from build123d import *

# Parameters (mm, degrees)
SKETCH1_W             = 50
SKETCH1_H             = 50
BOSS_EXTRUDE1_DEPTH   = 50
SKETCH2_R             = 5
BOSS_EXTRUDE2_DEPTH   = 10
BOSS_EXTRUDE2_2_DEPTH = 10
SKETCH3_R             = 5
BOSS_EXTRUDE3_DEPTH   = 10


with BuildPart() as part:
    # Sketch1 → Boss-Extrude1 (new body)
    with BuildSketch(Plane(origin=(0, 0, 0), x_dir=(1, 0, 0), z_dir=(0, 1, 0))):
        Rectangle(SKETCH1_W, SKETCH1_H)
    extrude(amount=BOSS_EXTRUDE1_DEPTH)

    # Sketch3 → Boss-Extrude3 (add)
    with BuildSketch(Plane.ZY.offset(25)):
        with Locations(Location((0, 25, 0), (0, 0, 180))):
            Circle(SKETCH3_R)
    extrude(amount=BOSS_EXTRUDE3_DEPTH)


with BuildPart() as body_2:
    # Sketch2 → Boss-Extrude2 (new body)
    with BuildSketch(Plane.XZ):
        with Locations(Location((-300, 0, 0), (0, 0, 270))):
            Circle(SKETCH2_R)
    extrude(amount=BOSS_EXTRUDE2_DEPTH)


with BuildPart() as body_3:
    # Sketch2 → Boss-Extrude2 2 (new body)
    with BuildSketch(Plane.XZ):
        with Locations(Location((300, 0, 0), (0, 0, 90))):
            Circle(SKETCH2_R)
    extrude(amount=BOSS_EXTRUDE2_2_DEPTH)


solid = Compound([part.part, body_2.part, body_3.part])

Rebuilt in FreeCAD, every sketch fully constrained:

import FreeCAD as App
import Part
import Sketcher

V = App.Vector
Q = App.Units.Quantity

doc = App.newDocument("Part")
body = doc.addObject("PartDesign::Body", "Body")

sketch1 = body.newObject("Sketcher::SketchObject", "Sketch")
sketch1.AttachmentSupport = (doc.getObject("XZ_Plane"), [""])
sketch1.MapMode = "FlatFace"
sketch1.addGeometry([
    Part.LineSegment(V(-25, -25, 0), V(-25, 25, 0)),
    Part.LineSegment(V(-25, 25, 0), V(25, 25, 0)),
    Part.LineSegment(V(25, 25, 0), V(25, -25, 0)),
    Part.LineSegment(V(25, -25, 0), V(-25, -25, 0)),
], False)
sketch1.addConstraint([
    Sketcher.Constraint("Coincident", 0, 2, 1, 1),
    Sketcher.Constraint("Coincident", 1, 2, 2, 1),
    Sketcher.Constraint("Coincident", 2, 2, 3, 1),
    Sketcher.Constraint("Coincident", 3, 2, 0, 1),
    Sketcher.Constraint("Vertical", 0),
    Sketcher.Constraint("Horizontal", 1),
    Sketcher.Constraint("Vertical", 2),
    Sketcher.Constraint("Horizontal", 3),
    Sketcher.Constraint("Symmetric", 0, 2, 2, 2, -1, 1),
    Sketcher.Constraint("Equal", 3, 0),
    Sketcher.Constraint("DistanceX", 1, 1, 1, 2, Q("50 mm")),
])
pad1 = body.newObject("PartDesign::Pad", "Pad")
pad1.Profile = sketch1
pad1.Length = 50
pad1.Reversed = True

sketch2 = body.newObject("Sketcher::SketchObject", "Sketch001")
sketch2.AttachmentSupport = (doc.getObject("YZ_Plane"), [""])
sketch2.MapMode = "FlatFace"
sketch2.AttachmentOffset = App.Placement(V(0, 0, -25), App.Rotation())
sketch2.addGeometry(Part.Circle(V(25, 0, 0), V(0, 0, 1), 5), False)
sketch2.addConstraint([
    Sketcher.Constraint("PointOnObject", 0, 3, -1),
    Sketcher.Constraint("Diameter", 0, Q("10 mm")),
    Sketcher.Constraint("DistanceX", -1, 1, 0, 3, Q("25 mm")),
])
pad2 = body.newObject("PartDesign::Pad", "Pad001")
pad2.Profile = sketch2
pad2.Length = 10
pad2.Reversed = True
body2 = doc.addObject("PartDesign::Body", "Body001")

sketch3 = body2.newObject("Sketcher::SketchObject", "Sketch002")
sketch3.AttachmentSupport = (doc.getObject("XZ_Plane001"), [""])
sketch3.MapMode = "FlatFace"
sketch3.addGeometry(Part.Circle(V(-300, 0, 0), V(0, 0, 1), 5), False)
sketch3.addConstraint([
    Sketcher.Constraint("PointOnObject", 0, 3, -1),
    Sketcher.Constraint("Diameter", 0, Q("10 mm")),
    Sketcher.Constraint("DistanceX", 0, 3, -1, 1, Q("300 mm")),
])
pad3 = body2.newObject("PartDesign::Pad", "Pad002")
pad3.Profile = sketch3
pad3.Length = 10
body3 = doc.addObject("PartDesign::Body", "Body002")

sketch4 = body3.newObject("Sketcher::SketchObject", "Sketch003")
sketch4.AttachmentSupport = (doc.getObject("XZ_Plane002"), [""])
sketch4.MapMode = "FlatFace"
sketch4.addGeometry(Part.Circle(V(300, 0, 0), V(0, 0, 1), 5), False)
sketch4.addConstraint([
    Sketcher.Constraint("PointOnObject", 0, 3, -1),
    Sketcher.Constraint("Diameter", 0, Q("10 mm")),
    Sketcher.Constraint("DistanceX", -1, 1, 0, 3, Q("300 mm")),
])
pad4 = body3.newObject("PartDesign::Pad", "Pad003")
pad4.Profile = sketch4
pad4.Length = 10

doc.recompute()
